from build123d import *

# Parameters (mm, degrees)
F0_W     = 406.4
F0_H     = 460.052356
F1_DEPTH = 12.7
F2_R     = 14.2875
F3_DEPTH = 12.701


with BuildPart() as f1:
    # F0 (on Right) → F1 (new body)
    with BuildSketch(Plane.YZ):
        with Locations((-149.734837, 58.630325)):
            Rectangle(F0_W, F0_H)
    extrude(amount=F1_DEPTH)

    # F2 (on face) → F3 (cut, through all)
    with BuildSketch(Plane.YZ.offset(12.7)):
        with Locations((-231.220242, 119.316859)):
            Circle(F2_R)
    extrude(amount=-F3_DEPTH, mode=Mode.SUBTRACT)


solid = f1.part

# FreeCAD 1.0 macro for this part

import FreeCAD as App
import Part
import Sketcher
from FreeCAD import Vector
Q = App.Units.Quantity


def add_polygon(sketch, points):
    """Adds a closed chain of lines whose ends are joined by coincident constraints."""
    first, n = sketch.GeometryCount, len(points)
    for a, b in zip(points, points[1:] + points[:1]):
        sketch.addGeometry(Part.LineSegment(App.Vector(*a, 0), App.Vector(*b, 0)), False)
    for i in range(n):
        sketch.addConstraint(Sketcher.Constraint("Coincident", first + i, 2, first + (i + 1) % n, 1))

doc = App.newDocument("Part")
body = doc.addObject("PartDesign::Body", "Body")

# Sketch on YZ plane
sketch1 = body.newObject("Sketcher::SketchObject", "Sketch")
sketch1.AttachmentSupport = (doc.getObject("YZ_Plane"), [""])
sketch1.MapMode = "FlatFace"
add_polygon(sketch1, [(-353, 289), (-353, -171), (53, -171), (53, 289)])  # lines 0-3
sketch1.addConstraint([
    Sketcher.Constraint("Vertical", 0),
    Sketcher.Constraint("Horizontal", 1),
    Sketcher.Constraint("Vertical", 2),
    Sketcher.Constraint("Horizontal", 3),
    Sketcher.Constraint("DistanceX", 1, 1, 1, 2, Q("16 in")),
    Sketcher.Constraint("DistanceY", 0, 2, 0, 1, 460.052356),
    Sketcher.Constraint("DistanceX", 0, 2, -1, 1, 352.934837),
    Sketcher.Constraint("DistanceY", 0, 2, -1, 1, 171.395853),
])
pad1 = body.newObject("PartDesign::Pad", "Pad")
pad1.Profile = sketch1
pad1.Length = Q("0.5 in")

# Sketch on YZ plane
sketch2 = body.newObject("Sketcher::SketchObject", "Sketch001")
sketch2.AttachmentSupport = (doc.getObject("YZ_Plane"), [""])
sketch2.MapMode = "FlatFace"
sketch2.AttachmentOffset = App.Placement(Vector(0, 0, 0.5 * 25.4), App.Rotation())
sketch2.addGeometry(Part.Circle(Vector(-231, 119, 0), Vector(0, 0, 1), 14), False)
sketch2.addConstraint([
    Sketcher.Constraint("Diameter", 0, Q("1.125 in")),
    Sketcher.Constraint("DistanceY", -1, 1, 0, 3, 119.316859),
    Sketcher.Constraint("DistanceX", 0, 3, -1, 1, 231.220242),
])
pocket1 = body.newObject("PartDesign::Pocket", "Pocket")
pocket1.Profile = sketch2
pocket1.Type = "ThroughAll"

doc.recompute()
